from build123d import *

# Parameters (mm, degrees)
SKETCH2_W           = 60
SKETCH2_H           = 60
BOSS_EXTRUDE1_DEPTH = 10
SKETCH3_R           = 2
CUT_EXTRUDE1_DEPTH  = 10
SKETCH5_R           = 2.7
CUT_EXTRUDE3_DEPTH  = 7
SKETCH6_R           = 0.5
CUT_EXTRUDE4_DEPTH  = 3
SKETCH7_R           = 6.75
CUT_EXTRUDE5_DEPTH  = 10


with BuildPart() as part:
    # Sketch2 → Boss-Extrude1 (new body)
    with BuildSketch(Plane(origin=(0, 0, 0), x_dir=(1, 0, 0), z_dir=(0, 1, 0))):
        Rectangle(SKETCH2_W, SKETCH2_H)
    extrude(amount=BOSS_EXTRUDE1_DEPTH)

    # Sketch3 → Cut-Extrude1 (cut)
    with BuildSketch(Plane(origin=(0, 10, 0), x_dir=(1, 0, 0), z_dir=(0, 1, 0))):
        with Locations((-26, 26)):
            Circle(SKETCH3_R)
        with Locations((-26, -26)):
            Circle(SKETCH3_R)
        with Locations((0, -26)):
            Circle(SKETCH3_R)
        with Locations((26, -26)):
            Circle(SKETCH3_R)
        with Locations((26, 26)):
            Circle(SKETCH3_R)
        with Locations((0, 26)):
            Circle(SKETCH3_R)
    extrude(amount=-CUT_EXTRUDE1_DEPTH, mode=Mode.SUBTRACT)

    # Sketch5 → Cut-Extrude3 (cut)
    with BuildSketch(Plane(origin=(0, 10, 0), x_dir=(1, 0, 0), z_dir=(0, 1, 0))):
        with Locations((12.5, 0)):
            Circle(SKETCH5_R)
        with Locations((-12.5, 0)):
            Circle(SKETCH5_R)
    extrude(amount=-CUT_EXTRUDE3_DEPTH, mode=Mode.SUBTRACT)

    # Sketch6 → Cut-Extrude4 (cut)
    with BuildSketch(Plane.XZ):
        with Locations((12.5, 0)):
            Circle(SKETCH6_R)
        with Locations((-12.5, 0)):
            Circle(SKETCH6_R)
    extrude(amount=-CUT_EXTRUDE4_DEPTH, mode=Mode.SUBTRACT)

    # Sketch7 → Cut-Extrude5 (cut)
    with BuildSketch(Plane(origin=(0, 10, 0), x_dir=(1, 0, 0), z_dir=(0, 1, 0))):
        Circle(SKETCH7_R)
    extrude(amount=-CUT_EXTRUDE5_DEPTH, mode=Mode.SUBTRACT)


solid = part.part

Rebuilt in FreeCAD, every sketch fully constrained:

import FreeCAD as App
import Part
import Sketcher

V = App.Vector
Q = App.Units.Quantity

doc = App.newDocument("Part")
params = doc.addObject("Spreadsheet::Sheet", "Params")
for row, (alias, value) in enumerate([
    ("sketch1_width", "60 mm"),
    ("pad1_length", "10 mm"),
    ("sketch2_diameter", "4 mm"),
    ("pocket1_length", "10 mm"),
    ("sketch3_diameter", "5.4 mm"),
    ("pocket2_length", "7 mm"),
    ("sketch4_diameter", "1 mm"),
    ("pocket3_length", "3 mm"),
    ("sketch5_diameter", "13.5 mm"),
    ("pocket4_length", "10 mm"),
], start=1):
    params.set(f"A{row}", alias)
    params.set(f"B{row}", "=" + value)
    params.setAlias(f"B{row}", alias)

body = doc.addObject("PartDesign::Body", "Body")

sketch1 = body.newObject("Sketcher::SketchObject", "Sketch")
sketch1.AttachmentSupport = (doc.getObject("XZ_Plane"), [""])
sketch1.MapMode = "FlatFace"
sketch1.addGeometry([
    Part.LineSegment(V(-30, -30, 0), V(-30, 30, 0)),
    Part.LineSegment(V(-30, 30, 0), V(30, 30, 0)),
    Part.LineSegment(V(30, 30, 0), V(30, -30, 0)),
    Part.LineSegment(V(30, -30, 0), V(-30, -30, 0)),
], False)
sketch1.addConstraint([
    Sketcher.Constraint("Coincident", 0, 2, 1, 1),
    Sketcher.Constraint("Coincident", 1, 2, 2, 1),
    Sketcher.Constraint("Coincident", 2, 2, 3, 1),
    Sketcher.Constraint("Coincident", 3, 2, 0, 1),
    Sketcher.Constraint("Vertical", 0),
    Sketcher.Constraint("Horizontal", 1),
    Sketcher.Constraint("Vertical", 2),
    Sketcher.Constraint("Horizontal", 3),
    Sketcher.Constraint("Symmetric", 0, 2, 2, 2, -1, 1),
    Sketcher.Constraint("Equal", 3, 0),
    Sketcher.Constraint("DistanceX", 1, 1, 1, 2, Q("60 mm")),
])
sketch1.setExpression("Constraints[10]", "Params.sketch1_width")
pad1 = body.newObject("PartDesign::Pad", "Pad")
pad1.Profile = sketch1
pad1.setExpression("Length", "Params.pad1_length")
pad1.Reversed = True

sketch2 = body.newObject("Sketcher::SketchObject", "Sketch001")
sketch2.AttachmentSupport = (doc.getObject("XZ_Plane"), [""])
sketch2.MapMode = "FlatFace"
sketch2.AttachmentOffset = App.Placement(V(0, 0, -10), App.Rotation())
sketch2.addGeometry([
    Part.Circle(V(-26, -26, 0), V(0, 0, 1), 2),
    Part.Circle(V(-26, 26, 0), V(0, 0, 1), 2),
    Part.Circle(V(0, 26, 0), V(0, 0, 1), 2),
    Part.Circle(V(26, 26, 0), V(0, 0, 1), 2),
    Part.Circle(V(26, -26, 0), V(0, 0, 1), 2),
    Part.Circle(V(0, -26, 0), V(0, 0, 1), 2),
], False)
sketch2.addConstraint([
    Sketcher.Constraint("Equal", 0, 1),
    Sketcher.Constraint("Equal", 1, 2),
    Sketcher.Constraint("Equal", 2, 3),
    Sketcher.Constraint("Equal", 3, 4),
    Sketcher.Constraint("Equal", 4, 5),
    Sketcher.Constraint("Symmetric", 0, 3, 3, 3, -1, 1),
    Sketcher.Constraint("Symmetric", 1, 3, 4, 3, -1, 1),
    Sketcher.Constraint("Symmetric", 2, 3, 5, 3, -1, 1),
    Sketcher.Constraint("Symmetric", 1, 3, 3, 3, -2),
    Sketcher.Constraint("PointOnObject", 2, 3, -2),
    Sketcher.Constraint("Horizontal", 1, 3, 2, 3),
    Sketcher.Constraint("Diameter", 0, Q("4 mm")),
    Sketcher.Constraint("DistanceX", 0, 3, -1, 1, Q("26 mm")),
    Sketcher.Constraint("DistanceY", 0, 3, -1, 1, Q("26 mm")),
])
sketch2.setExpression("Constraints[11]", "Params.sketch2_diameter")
pocket1 = body.newObject("PartDesign::Pocket", "Pocket")
pocket1.Profile = sketch2
pocket1.setExpression("Length", "Params.pocket1_length")
pocket1.Reversed = True

sketch3 = body.newObject("Sketcher::SketchObject", "Sketch002")
sketch3.AttachmentSupport = (doc.getObject("XZ_Plane"), [""])
sketch3.MapMode = "FlatFace"
sketch3.AttachmentOffset = App.Placement(V(0, 0, -10), App.Rotation())
sketch3.addGeometry([
    Part.Circle(V(12.5, 0, 0), V(0, 0, 1), 2.7),
    Part.Circle(V(-12.5, 0, 0), V(0, 0, 1), 2.7),
], False)
sketch3.addConstraint([
    Sketcher.Constraint("Equal", 0, 1),
    Sketcher.Constraint("Symmetric", 0, 3, 1, 3, -1, 1),
    Sketcher.Constraint("PointOnObject", 0, 3, -1),
    Sketcher.Constraint("Diameter", 0, Q("5.4 mm")),
    Sketcher.Constraint("DistanceX", 1, 3, 0, 3, Q("25 mm")),
])
sketch3.setExpression("Constraints[3]", "Params.sketch3_diameter")
pocket2 = body.newObject("PartDesign::Pocket", "Pocket001")
pocket2.Profile = sketch3
pocket2.setExpression("Length", "Params.pocket2_length")
pocket2.Reversed = True

sketch4 = body.newObject("Sketcher::SketchObject", "Sketch003")
sketch4.AttachmentSupport = (doc.getObject("XZ_Plane"), [""])
sketch4.MapMode = "FlatFace"
sketch4.addGeometry([
    Part.Circle(V(12.5, 0, 0), V(0, 0, 1), 0.5),
    Part.Circle(V(-12.5, 0, 0), V(0, 0, 1), 0.5),
], False)
sketch4.addConstraint([
    Sketcher.Constraint("Equal", 0, 1),
    Sketcher.Constraint("Symmetric", 0, 3, 1, 3, -1, 1),
    Sketcher.Constraint("PointOnObject", 0, 3, -1),
    Sketcher.Constraint("Diameter", 0, Q("1 mm")),
    Sketcher.Constraint("DistanceX", 1, 3, 0, 3, Q("25 mm")),
])
sketch4.setExpression("Constraints[3]", "Params.sketch4_diameter")
pocket3 = body.newObject("PartDesign::Pocket", "Pocket002")
pocket3.Profile = sketch4
pocket3.setExpression("Length", "Params.pocket3_length")

sketch5 = body.newObject("Sketcher::SketchObject", "Sketch004")
sketch5.AttachmentSupport = (doc.getObject("XZ_Plane"), [""])
sketch5.MapMode = "FlatFace"
sketch5.AttachmentOffset = App.Placement(V(0, 0, -10), App.Rotation())
sketch5.addGeometry(Part.Circle(V(0, 0, 0), V(0, 0, 1), 7), False)
sketch5.addConstraint([
    Sketcher.Constraint("Coincident", 0, 3, -1, 1),
    Sketcher.Constraint("Diameter", 0, Q("13.5 mm")),
])
sketch5.setExpression("Constraints[1]", "Params.sketch5_diameter")
pocket4 = body.newObject("PartDesign::Pocket", "Pocket003")
pocket4.Profile = sketch5
pocket4.setExpression("Length", "Params.pocket4_length")
pocket4.Reversed = True

doc.recompute()
